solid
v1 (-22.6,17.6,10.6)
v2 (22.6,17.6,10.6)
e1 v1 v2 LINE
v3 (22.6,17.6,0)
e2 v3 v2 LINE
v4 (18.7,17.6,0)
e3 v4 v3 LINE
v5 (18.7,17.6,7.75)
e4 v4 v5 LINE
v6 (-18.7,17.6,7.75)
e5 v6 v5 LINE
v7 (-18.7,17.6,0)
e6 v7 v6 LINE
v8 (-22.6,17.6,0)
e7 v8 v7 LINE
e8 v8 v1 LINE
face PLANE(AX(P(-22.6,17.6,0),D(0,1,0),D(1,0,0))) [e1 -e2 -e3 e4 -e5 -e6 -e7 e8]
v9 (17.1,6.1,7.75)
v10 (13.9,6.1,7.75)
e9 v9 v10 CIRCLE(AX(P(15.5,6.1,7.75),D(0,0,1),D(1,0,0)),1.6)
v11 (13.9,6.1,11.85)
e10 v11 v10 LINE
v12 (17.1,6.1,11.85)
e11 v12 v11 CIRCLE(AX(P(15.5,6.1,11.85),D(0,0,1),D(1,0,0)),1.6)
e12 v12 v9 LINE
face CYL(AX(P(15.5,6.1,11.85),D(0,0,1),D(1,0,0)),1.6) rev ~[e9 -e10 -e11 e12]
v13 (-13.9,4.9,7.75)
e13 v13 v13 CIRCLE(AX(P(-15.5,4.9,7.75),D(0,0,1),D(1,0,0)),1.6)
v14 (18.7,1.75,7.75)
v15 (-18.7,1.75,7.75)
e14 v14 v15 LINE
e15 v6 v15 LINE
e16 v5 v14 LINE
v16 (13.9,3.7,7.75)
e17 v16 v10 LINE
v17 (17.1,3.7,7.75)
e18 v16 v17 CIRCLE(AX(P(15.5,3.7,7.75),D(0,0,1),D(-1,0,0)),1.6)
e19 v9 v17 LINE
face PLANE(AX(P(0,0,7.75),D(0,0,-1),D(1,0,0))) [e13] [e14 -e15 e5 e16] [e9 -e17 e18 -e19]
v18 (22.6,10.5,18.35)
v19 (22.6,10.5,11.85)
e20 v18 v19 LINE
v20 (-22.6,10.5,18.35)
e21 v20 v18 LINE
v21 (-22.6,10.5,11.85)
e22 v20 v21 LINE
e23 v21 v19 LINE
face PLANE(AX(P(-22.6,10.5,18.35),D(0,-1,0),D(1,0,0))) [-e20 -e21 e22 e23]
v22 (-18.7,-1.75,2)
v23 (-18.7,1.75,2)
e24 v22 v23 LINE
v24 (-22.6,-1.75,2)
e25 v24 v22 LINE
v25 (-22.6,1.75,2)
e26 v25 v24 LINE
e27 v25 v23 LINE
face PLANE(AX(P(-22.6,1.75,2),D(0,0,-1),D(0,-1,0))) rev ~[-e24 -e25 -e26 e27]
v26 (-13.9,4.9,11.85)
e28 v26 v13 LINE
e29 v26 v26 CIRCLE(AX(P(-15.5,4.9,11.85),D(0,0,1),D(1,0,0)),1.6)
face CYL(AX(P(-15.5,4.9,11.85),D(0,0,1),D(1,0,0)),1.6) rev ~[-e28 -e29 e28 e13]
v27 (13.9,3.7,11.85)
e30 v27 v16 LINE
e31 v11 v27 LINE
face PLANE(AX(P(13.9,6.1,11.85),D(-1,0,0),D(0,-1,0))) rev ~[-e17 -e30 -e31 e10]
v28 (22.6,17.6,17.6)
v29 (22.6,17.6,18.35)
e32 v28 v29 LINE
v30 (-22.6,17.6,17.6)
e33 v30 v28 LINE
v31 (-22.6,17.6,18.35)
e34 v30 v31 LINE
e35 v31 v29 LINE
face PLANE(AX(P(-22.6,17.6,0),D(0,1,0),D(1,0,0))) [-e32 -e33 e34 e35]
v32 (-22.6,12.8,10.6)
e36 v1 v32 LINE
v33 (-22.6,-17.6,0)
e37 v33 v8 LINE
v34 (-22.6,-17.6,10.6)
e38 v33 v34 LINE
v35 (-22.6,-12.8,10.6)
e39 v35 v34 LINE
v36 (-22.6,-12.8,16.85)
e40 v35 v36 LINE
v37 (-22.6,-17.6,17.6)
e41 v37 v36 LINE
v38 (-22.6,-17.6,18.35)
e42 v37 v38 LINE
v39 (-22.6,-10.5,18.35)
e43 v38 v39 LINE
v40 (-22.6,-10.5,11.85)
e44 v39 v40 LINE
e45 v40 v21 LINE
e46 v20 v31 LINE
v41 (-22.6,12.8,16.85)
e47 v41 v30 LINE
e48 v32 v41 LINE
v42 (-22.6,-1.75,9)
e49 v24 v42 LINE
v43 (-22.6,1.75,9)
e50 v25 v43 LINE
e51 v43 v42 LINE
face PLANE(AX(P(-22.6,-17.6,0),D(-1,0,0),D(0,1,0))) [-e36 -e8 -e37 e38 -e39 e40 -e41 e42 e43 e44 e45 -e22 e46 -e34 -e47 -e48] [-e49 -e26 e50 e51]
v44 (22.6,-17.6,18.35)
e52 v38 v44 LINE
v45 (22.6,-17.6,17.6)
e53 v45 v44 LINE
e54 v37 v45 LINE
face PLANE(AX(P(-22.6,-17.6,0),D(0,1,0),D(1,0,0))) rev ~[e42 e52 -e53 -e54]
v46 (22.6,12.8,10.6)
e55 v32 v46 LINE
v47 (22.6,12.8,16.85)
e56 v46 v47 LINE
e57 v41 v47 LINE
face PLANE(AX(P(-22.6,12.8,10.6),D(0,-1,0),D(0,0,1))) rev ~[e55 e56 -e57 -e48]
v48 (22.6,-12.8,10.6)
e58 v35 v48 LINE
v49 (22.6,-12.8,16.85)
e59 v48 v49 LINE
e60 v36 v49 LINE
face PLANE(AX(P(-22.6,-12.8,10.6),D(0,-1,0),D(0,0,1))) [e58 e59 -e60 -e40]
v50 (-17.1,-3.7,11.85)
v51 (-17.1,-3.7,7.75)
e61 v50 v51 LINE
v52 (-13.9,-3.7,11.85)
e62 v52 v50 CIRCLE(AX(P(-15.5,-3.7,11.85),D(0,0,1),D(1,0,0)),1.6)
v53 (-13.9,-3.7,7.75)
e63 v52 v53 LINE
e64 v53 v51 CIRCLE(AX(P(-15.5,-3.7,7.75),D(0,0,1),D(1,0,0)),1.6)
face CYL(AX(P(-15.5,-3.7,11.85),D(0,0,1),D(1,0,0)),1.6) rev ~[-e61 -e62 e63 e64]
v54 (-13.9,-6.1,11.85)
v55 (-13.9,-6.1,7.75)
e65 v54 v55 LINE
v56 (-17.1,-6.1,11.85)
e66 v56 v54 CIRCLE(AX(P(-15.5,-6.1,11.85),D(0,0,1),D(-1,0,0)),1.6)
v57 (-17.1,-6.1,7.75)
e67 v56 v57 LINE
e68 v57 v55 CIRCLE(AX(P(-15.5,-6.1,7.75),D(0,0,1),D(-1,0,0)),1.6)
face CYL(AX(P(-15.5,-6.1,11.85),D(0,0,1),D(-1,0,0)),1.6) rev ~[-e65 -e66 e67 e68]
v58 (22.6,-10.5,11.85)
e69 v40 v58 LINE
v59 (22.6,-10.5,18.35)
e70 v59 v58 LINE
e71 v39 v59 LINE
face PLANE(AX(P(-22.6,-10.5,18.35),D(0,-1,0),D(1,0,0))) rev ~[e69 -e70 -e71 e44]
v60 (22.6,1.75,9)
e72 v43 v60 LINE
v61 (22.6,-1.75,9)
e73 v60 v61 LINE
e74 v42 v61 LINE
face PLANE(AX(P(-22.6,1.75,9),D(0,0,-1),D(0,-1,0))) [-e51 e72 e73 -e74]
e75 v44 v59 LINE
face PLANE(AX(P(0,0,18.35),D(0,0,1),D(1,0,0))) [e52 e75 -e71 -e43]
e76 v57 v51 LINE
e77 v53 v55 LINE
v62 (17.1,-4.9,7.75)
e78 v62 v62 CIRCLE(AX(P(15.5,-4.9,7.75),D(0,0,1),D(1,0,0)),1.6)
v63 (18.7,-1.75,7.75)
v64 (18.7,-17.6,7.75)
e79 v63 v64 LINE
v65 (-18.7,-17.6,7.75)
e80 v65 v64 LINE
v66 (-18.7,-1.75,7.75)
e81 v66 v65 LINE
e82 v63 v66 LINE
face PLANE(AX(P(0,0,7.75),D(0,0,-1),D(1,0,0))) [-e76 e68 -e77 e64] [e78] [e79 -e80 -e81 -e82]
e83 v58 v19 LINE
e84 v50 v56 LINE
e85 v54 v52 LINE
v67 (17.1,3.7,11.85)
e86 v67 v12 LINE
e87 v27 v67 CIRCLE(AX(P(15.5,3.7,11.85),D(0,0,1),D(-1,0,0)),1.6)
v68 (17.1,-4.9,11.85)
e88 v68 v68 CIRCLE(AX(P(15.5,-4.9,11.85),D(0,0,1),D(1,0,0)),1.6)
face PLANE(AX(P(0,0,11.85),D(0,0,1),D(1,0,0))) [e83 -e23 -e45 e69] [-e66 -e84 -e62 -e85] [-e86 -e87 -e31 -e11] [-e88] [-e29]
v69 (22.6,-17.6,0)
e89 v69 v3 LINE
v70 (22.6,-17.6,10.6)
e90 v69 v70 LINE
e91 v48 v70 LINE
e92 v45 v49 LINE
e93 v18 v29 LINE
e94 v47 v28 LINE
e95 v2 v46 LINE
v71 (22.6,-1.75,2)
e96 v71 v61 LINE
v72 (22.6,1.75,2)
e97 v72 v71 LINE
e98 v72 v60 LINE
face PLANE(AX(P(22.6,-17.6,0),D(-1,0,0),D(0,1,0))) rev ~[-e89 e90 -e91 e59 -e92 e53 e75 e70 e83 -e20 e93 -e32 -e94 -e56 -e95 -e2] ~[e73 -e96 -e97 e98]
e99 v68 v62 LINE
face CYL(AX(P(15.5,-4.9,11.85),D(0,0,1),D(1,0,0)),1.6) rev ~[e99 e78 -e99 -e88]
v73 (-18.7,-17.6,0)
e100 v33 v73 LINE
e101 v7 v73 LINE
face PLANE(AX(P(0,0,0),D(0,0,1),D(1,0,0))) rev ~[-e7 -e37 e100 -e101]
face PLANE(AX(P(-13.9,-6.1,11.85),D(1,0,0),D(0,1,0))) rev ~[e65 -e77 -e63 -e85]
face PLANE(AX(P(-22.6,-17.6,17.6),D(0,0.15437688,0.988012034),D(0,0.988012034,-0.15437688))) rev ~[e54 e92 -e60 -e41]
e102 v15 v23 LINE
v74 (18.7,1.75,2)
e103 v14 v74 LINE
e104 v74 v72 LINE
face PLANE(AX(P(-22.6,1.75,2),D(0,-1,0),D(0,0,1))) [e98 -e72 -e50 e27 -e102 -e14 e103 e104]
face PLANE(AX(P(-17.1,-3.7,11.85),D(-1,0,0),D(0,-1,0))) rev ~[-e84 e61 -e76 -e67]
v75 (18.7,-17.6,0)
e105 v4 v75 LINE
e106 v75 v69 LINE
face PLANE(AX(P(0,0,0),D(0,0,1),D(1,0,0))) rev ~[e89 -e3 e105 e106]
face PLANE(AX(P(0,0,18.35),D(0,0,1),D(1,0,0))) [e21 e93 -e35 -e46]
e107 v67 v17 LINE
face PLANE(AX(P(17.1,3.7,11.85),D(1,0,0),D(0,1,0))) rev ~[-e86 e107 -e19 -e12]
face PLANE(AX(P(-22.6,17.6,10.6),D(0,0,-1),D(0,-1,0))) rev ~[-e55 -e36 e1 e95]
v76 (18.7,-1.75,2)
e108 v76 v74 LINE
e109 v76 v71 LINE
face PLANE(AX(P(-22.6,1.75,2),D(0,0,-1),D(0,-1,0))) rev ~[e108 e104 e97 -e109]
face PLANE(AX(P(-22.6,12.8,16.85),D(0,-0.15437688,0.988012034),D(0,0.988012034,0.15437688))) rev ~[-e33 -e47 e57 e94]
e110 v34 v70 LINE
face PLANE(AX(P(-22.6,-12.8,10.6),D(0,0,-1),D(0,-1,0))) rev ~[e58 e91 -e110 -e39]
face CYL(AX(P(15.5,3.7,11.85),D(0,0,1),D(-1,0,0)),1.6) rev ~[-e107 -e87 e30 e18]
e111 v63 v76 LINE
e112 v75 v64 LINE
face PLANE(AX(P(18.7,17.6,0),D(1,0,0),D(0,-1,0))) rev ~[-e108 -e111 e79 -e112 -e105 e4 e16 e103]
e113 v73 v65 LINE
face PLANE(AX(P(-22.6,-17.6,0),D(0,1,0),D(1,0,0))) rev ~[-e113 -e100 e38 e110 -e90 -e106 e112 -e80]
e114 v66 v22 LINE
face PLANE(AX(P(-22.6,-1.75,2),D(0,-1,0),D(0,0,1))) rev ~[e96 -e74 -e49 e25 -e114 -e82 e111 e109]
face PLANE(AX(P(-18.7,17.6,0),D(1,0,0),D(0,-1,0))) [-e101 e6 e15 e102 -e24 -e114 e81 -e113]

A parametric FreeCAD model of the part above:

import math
import FreeCAD as App
import Part
import Sketcher
from FreeCAD import Vector

doc = App.newDocument("Part")
body = doc.addObject("PartDesign::Body", "Body")

# Sketch on XY plane
sketch1 = doc.addObject("Sketcher::SketchObject", "Sketch")
body.addObject(sketch1)
sketch1.AttachmentSupport = (doc.XY_Plane, [""])
sketch1.MapMode = "FlatFace"
sketch1.addGeometry([
    Part.LineSegment(Vector(-23, 18, 0), Vector(-23, -18, 0)),
    Part.LineSegment(Vector(-23, -18, 0), Vector(23, -18, 0)),
    Part.LineSegment(Vector(23, -18, 0), Vector(23, 18, 0)),
    Part.LineSegment(Vector(23, 18, 0), Vector(-23, 18, 0)),
], False)
sketch1.addConstraint([
    Sketcher.Constraint("Coincident", 0, 2, 1, 1),
    Sketcher.Constraint("Coincident", 1, 2, 2, 1),
    Sketcher.Constraint("Coincident", 2, 2, 3, 1),
    Sketcher.Constraint("Coincident", 3, 2, 0, 1),
    Sketcher.Constraint("Vertical", 0),
    Sketcher.Constraint("Horizontal", 1),
    Sketcher.Constraint("Vertical", 2),
    Sketcher.Constraint("Horizontal", 3),
    Sketcher.Constraint("Symmetric", 0, 2, 2, 2, -1, 1),
    Sketcher.Constraint("DistanceX", 1, 1, 1, 2, 45.2),
    Sketcher.Constraint("DistanceY", 0, 2, 0, 1, 35.2),
])
pad1 = doc.addObject("PartDesign::Pad", "Pad")
body.addObject(pad1)
pad1.Profile = sketch1
pad1.Length = 18.35

# Sketch on XY plane
sketch2 = doc.addObject("Sketcher::SketchObject", "Sketch001")
body.addObject(sketch2)
sketch2.AttachmentSupport = (doc.XY_Plane, [""])
sketch2.MapMode = "FlatFace"
sketch2.addGeometry([
    Part.LineSegment(Vector(-19, -18, 0), Vector(-19, 18, 0)),
    Part.LineSegment(Vector(-19, 18, 0), Vector(19, 18, 0)),
    Part.LineSegment(Vector(19, 18, 0), Vector(19, -18, 0)),
    Part.LineSegment(Vector(19, -18, 0), Vector(-19, -18, 0)),
], False)
sketch2.addConstraint([
    Sketcher.Constraint("Coincident", 0, 2, 1, 1),
    Sketcher.Constraint("Coincident", 1, 2, 2, 1),
    Sketcher.Constraint("Coincident", 2, 2, 3, 1),
    Sketcher.Constraint("Coincident", 3, 2, 0, 1),
    Sketcher.Constraint("Vertical", 0),
    Sketcher.Constraint("Horizontal", 1),
    Sketcher.Constraint("Vertical", 2),
    Sketcher.Constraint("Horizontal", 3),
    Sketcher.Constraint("Symmetric", 0, 2, 2, 2, -1, 1),
    Sketcher.Constraint("DistanceX", 1, 1, 1, 2, 37.4),
    Sketcher.Constraint("DistanceY", 0, 1, 0, 2, 35.2),
])
pocket1 = doc.addObject("PartDesign::Pocket", "Pocket")
body.addObject(pocket1)
pocket1.Profile = sketch2
pocket1.Length = 7.75
pocket1.Reversed = True

# Sketch on XY plane
sketch3 = doc.addObject("Sketcher::SketchObject", "Sketch002")
body.addObject(sketch3)
sketch3.AttachmentSupport = (doc.XY_Plane, [""])
sketch3.MapMode = "FlatFace"
sketch3.AttachmentOffset = App.Placement(Vector(0, 0, 18.35), App.Rotation())
sketch3.addGeometry([
    Part.LineSegment(Vector(-23, 10, 0), Vector(-23, -10, 0)),
    Part.LineSegment(Vector(-23, -10, 0), Vector(23, -10, 0)),
    Part.LineSegment(Vector(23, -10, 0), Vector(23, 10, 0)),
    Part.LineSegment(Vector(23, 10, 0), Vector(-23, 10, 0)),
], False)
sketch3.addConstraint([
    Sketcher.Constraint("Coincident", 0, 2, 1, 1),
    Sketcher.Constraint("Coincident", 1, 2, 2, 1),
    Sketcher.Constraint("Coincident", 2, 2, 3, 1),
    Sketcher.Constraint("Coincident", 3, 2, 0, 1),
    Sketcher.Constraint("Vertical", 0),
    Sketcher.Constraint("Horizontal", 1),
    Sketcher.Constraint("Vertical", 2),
    Sketcher.Constraint("Horizontal", 3),
    Sketcher.Constraint("Symmetric", 0, 2, 2, 2, -1, 1),
    Sketcher.Constraint("DistanceY", 0, 2, 0, 1, 21.0),
    Sketcher.Constraint("DistanceX", 1, 1, 1, 2, 45.2),
])
pocket2 = doc.addObject("PartDesign::Pocket", "Pocket001")
body.addObject(pocket2)
pocket2.Profile = sketch3
pocket2.Length = 6.5

# Sketch on YZ plane
sketch4 = doc.addObject("Sketcher::SketchObject", "Sketch003")
body.addObject(sketch4)
sketch4.AttachmentSupport = (doc.YZ_Plane, [""])
sketch4.MapMode = "FlatFace"
sketch4.AttachmentOffset = App.Placement(Vector(0, 0, -22.6), App.Rotation())
sketch4.addGeometry([
    Part.LineSegment(Vector(17.6, 16.9, 0), Vector(17.6, 10.6, 0)),  # 0
    Part.LineSegment(Vector(17.6, 10.6, 0), Vector(12.8, 10.6, 0)),  # 1
    Part.LineSegment(Vector(12.8, 10.6, 0), Vector(12.8, 16.9, 0)),  # 2
    Part.LineSegment(Vector(12.8, 16.9, 0), Vector(17.6, 16.9, 0)),  # 3
    Part.LineSegment(Vector(-12.8, 16.9, 0), Vector(-12.8, 10.6, 0)),  # 4
    Part.LineSegment(Vector(-12.8, 10.6, 0), Vector(-17.6, 10.6, 0)),  # 5
    Part.LineSegment(Vector(-17.6, 10.6, 0), Vector(-17.6, 16.9, 0)),  # 6
    Part.LineSegment(Vector(-17.6, 16.9, 0), Vector(-12.8, 16.9, 0)),  # 7
], False)
sketch4.addConstraint([
    Sketcher.Constraint("Coincident", 0, 2, 1, 1),
    Sketcher.Constraint("Coincident", 1, 2, 2, 1),
    Sketcher.Constraint("Coincident", 2, 2, 3, 1),
    Sketcher.Constraint("Coincident", 3, 2, 0, 1),
    Sketcher.Constraint("Coincident", 4, 2, 5, 1),
    Sketcher.Constraint("Coincident", 5, 2, 6, 1),
    Sketcher.Constraint("Coincident", 6, 2, 7, 1),
    Sketcher.Constraint("Coincident", 7, 2, 4, 1),
    Sketcher.Constraint("Vertical", 0),
    Sketcher.Constraint("Horizontal", 1),
    Sketcher.Constraint("Vertical", 2),
    Sketcher.Constraint("Horizontal", 3),
    Sketcher.Constraint("Vertical", 4),
    Sketcher.Constraint("Horizontal", 5),
    Sketcher.Constraint("Vertical", 6),
    Sketcher.Constraint("Horizontal", 7),
    Sketcher.Constraint("Symmetric", 1, 2, 4, 2, -2),
    Sketcher.Constraint("Symmetric", 3, 2, 6, 2, -2),
    Sketcher.Constraint("DistanceX", 1, 2, 1, 1, 4.8),
    Sketcher.Constraint("DistanceY", 0, 2, 0, 1, 6.25),
    Sketcher.Constraint("DistanceX", -1, 1, 0, 2, 17.6),
    Sketcher.Constraint("DistanceY", -1, 1, 0, 2, 10.6),
])
pocket3 = doc.addObject("PartDesign::Pocket", "Pocket002")
body.addObject(pocket3)
pocket3.Profile = sketch4
pocket3.Type = "ThroughAll"
pocket3.Reversed = True

# Sketch on YZ plane
sketch5 = doc.addObject("Sketcher::SketchObject", "Sketch004")
body.addObject(sketch5)
sketch5.AttachmentSupport = (doc.YZ_Plane, [""])
sketch5.MapMode = "FlatFace"
sketch5.AttachmentOffset = App.Placement(Vector(0, 0, -22.6), App.Rotation())
sketch5.addGeometry([
    Part.LineSegment(Vector(12.8, 16.9, 0), Vector(17.6, 17.6, 0)),  # 0
    Part.LineSegment(Vector(17.6, 17.6, 0), Vector(17.6, 16.9, 0)),  # 1
    Part.LineSegment(Vector(17.6, 16.9, 0), Vector(12.8, 16.9, 0)),  # 2
    Part.LineSegment(Vector(-17.6, 16.9, 0), Vector(-17.6, 17.6, 0)),  # 3
    Part.LineSegment(Vector(-17.6, 17.6, 0), Vector(-12.8, 16.9, 0)),  # 4
    Part.LineSegment(Vector(-12.8, 16.9, 0), Vector(-17.6, 16.9, 0)),  # 5
    Part.LineSegment(Vector(1.8, 9, 0), Vector(1.8, 2, 0)),  # 6
    Part.LineSegment(Vector(1.8, 2, 0), Vector(-1.8, 2, 0)),  # 7
    Part.LineSegment(Vector(-1.8, 2, 0), Vector(-1.8, 9, 0)),  # 8
    Part.LineSegment(Vector(-1.8, 9, 0), Vector(1.8, 9, 0)),  # 9
], False)
sketch5.addConstraint([
    Sketcher.Constraint("Coincident", 0, 2, 1, 1),
    Sketcher.Constraint("Coincident", 1, 2, 2, 1),
    Sketcher.Constraint("Coincident", 2, 2, 0, 1),
    Sketcher.Constraint("Coincident", 3, 2, 4, 1),
    Sketcher.Constraint("Coincident", 4, 2, 5, 1),
    Sketcher.Constraint("Coincident", 5, 2, 3, 1),
    Sketcher.Constraint("Coincident", 6, 2, 7, 1),
    Sketcher.Constraint("Coincident", 7, 2, 8, 1),
    Sketcher.Constraint("Coincident", 8, 2, 9, 1),
    Sketcher.Constraint("Coincident", 9, 2, 6, 1),
    Sketcher.Constraint("Vertical", 1),
    Sketcher.Constraint("Horizontal", 2),
    Sketcher.Constraint("Vertical", 3),
    Sketcher.Constraint("Horizontal", 5),
    Sketcher.Constraint("Vertical", 6),
    Sketcher.Constraint("Horizontal", 7),
    Sketcher.Constraint("Vertical", 8),
    Sketcher.Constraint("Horizontal", 9),
    Sketcher.Constraint("Symmetric", 0, 2, 3, 2, -2),
    Sketcher.Constraint("Symmetric", 2, 2, 4, 2, -2),
    Sketcher.Constraint("DistanceY", 6, 2, 6, 1, 7.0),
    Sketcher.Constraint("DistanceX", 2, 2, 2, 1, 4.8),
    Sketcher.Constraint("DistanceX", 7, 2, 7, 1, 3.5),
    Sketcher.Constraint("DistanceY", -1, 1, 6, 2, 2.0),
    Sketcher.Constraint("DistanceY", 1, 2, 1, 1, 0.75),
    Sketcher.Constraint("DistanceX", -1, 1, 0, 2, 17.6),
    Sketcher.Constraint("DistanceY", -1, 1, 0, 2, 17.6),
    Sketcher.Constraint("DistanceX", -1, 1, 6, 2, 1.75),
])
pocket4 = doc.addObject("PartDesign::Pocket", "Pocket003")
body.addObject(pocket4)
pocket4.Profile = sketch5
pocket4.Type = "ThroughAll"
pocket4.Reversed = True

# Sketch on XY plane
sketch6 = doc.addObject("Sketcher::SketchObject", "Sketch005")
body.addObject(sketch6)
sketch6.AttachmentSupport = (doc.XY_Plane, [""])
sketch6.MapMode = "FlatFace"
sketch6.AttachmentOffset = App.Placement(Vector(0, 0, 11.85), App.Rotation())
sketch6.addGeometry([
    Part.Circle(Vector(15.5, -4.9, 0), Vector(0, 0, 1), 1.6),  # 0
    Part.Circle(Vector(-15.5, 4.9, 0), Vector(0, 0, 1), 1.6),  # 1
    Part.ArcOfCircle(Part.Circle(Vector(-15.5, -6.1, 0), Vector(0, 0, 1), 1.6), math.radians(180), math.radians(360)),  # 2
    Part.LineSegment(Vector(-13.9, -6.1, 0), Vector(-13.9, -3.7, 0)),  # 3
    Part.ArcOfCircle(Part.Circle(Vector(-15.5, -3.7, 0), Vector(0, 0, 1), 1.6), math.radians(0), math.radians(180)),  # 4
    Part.LineSegment(Vector(-17.1, -3.7, 0), Vector(-17.1, -6.1, 0)),  # 5
    Part.ArcOfCircle(Part.Circle(Vector(15.5, 3.7, 0), Vector(0, 0, 1), 1.6), math.radians(180), math.radians(360)),  # 6
    Part.LineSegment(Vector(17.1, 3.7, 0), Vector(17.1, 6.1, 0)),  # 7
    Part.ArcOfCircle(Part.Circle(Vector(15.5, 6.1, 0), Vector(0, 0, 1), 1.6), math.radians(0), math.radians(180)),  # 8
    Part.LineSegment(Vector(13.9, 6.1, 0), Vector(13.9, 3.7, 0)),  # 9
], False)
sketch6.addConstraint([
    Sketcher.Constraint("Tangent", 2, 2, 3, 1),
    Sketcher.Constraint("Tangent", 3, 2, 4, 1),
    Sketcher.Constraint("Tangent", 4, 2, 5, 1),
    Sketcher.Constraint("Tangent", 5, 2, 2, 1),
    Sketcher.Constraint("Tangent", 6, 2, 7, 1),
    Sketcher.Constraint("Tangent", 7, 2, 8, 1),
    Sketcher.Constraint("Tangent", 8, 2, 9, 1),
    Sketcher.Constraint("Tangent", 9, 2, 6, 1),
    Sketcher.Constraint("Vertical", 3),
    Sketcher.Constraint("Vertical", 5),
    Sketcher.Constraint("Vertical", 7),
    Sketcher.Constraint("Vertical", 9),
    Sketcher.Constraint("Equal", 0, 1),
    Sketcher.Constraint("Equal", 1, 2),
    Sketcher.Constraint("Equal", 4, 6),
    Sketcher.Constraint("Symmetric", 0, 3, 1, 3, -1, 1),
    Sketcher.Constraint("Symmetric", 4, 3, 6, 3, -1, 1),
    Sketcher.Constraint("Vertical", 1, 3, 2, 3),
    Sketcher.Constraint("Equal", 5, 7),
    Sketcher.Constraint("Diameter", 0, 3.2),
    Sketcher.Constraint("DistanceY", 3, 1, 3, 2, 2.4),
    Sketcher.Constraint("DistanceX", 1, 3, 0, 3, 31.0),
    Sketcher.Constraint("DistanceY", 2, 3, 1, 3, 11.0),
    Sketcher.Constraint("DistanceY", 0, 3, -1, 1, 4.9),
])
pocket5 = doc.addObject("PartDesign::Pocket", "Pocket004")
body.addObject(pocket5)
pocket5.Profile = sketch6
pocket5.Type = "ThroughAll"

doc.recompute()
